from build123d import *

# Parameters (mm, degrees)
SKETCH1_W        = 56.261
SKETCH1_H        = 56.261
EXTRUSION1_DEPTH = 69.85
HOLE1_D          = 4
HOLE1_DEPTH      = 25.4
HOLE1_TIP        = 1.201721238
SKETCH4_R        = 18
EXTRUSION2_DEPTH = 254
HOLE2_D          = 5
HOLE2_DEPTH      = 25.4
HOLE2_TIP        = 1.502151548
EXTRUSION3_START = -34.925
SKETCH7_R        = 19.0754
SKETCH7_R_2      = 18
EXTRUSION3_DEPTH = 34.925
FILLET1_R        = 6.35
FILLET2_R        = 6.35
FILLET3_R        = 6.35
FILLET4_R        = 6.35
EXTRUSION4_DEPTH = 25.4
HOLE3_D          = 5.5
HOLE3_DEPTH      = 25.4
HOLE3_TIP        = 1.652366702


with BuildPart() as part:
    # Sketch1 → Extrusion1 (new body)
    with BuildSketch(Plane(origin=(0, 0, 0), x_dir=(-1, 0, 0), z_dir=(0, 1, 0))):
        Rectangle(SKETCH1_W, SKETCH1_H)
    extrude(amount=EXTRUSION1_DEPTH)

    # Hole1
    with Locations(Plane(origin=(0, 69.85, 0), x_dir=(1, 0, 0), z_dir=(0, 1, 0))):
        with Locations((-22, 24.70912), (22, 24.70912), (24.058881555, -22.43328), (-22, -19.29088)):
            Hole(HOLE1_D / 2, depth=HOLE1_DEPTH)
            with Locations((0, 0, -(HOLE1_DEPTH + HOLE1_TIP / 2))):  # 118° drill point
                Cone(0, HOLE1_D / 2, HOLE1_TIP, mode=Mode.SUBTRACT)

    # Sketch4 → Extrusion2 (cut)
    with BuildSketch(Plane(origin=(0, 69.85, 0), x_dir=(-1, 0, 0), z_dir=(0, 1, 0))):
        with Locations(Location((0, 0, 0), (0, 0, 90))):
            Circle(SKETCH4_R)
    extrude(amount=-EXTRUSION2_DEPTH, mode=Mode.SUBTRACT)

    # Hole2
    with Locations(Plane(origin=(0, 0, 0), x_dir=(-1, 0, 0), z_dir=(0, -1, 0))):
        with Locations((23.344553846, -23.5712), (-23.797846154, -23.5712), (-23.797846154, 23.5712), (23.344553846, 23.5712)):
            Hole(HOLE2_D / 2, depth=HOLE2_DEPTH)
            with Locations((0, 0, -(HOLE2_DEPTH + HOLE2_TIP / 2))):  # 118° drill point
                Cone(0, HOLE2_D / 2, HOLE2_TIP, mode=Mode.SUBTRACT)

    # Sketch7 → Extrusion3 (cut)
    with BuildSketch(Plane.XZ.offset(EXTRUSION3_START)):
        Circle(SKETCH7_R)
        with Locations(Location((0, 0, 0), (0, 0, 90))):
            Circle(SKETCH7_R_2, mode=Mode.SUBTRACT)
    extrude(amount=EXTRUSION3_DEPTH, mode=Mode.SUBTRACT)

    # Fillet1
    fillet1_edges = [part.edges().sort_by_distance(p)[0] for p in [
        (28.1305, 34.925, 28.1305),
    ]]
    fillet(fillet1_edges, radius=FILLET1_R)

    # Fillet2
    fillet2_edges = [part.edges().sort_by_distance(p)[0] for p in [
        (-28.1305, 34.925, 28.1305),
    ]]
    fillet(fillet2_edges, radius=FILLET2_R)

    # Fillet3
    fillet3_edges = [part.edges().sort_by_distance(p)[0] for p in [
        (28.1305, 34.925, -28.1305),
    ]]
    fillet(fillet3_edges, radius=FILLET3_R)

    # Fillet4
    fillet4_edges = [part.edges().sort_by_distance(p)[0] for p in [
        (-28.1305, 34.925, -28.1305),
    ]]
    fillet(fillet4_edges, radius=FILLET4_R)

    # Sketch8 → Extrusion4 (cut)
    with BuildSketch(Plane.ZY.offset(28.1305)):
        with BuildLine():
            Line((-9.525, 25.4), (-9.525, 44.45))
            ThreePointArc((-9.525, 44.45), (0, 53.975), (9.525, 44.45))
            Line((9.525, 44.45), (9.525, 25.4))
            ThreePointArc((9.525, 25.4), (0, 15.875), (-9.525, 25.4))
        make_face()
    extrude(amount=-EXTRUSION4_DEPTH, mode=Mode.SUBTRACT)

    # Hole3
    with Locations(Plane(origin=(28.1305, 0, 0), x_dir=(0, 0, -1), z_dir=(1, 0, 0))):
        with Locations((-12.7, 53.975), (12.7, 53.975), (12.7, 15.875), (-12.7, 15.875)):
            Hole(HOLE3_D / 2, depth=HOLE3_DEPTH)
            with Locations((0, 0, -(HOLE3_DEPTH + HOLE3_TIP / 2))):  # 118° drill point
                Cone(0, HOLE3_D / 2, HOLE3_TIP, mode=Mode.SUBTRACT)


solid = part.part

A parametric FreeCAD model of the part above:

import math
import FreeCAD as App
import Part
import Sketcher
from FreeCAD import Vector
Q = App.Units.Quantity


def edges_at(feature, points):
    """Names of the edges that pass closest to the given points."""
    edges = feature.Shape.Edges
    near = lambda p: min(range(len(edges)), key=lambda i: edges[i].distToShape(Part.Vertex(*p))[0])
    return sorted({f"Edge{near(p) + 1}" for p in points})

doc = App.newDocument("Part")
body = doc.addObject("PartDesign::Body", "Body")

sketch1 = body.newObject("Sketcher::SketchObject", "Sketch")
sketch1.AttachmentSupport = (doc.getObject("XZ_Plane"), [""])
sketch1.MapMode = "FlatFace"
sketch1.addGeometry(Part.LineSegment(Vector(28, 28, 0), Vector(28, -28, 0)), False)
sketch1.addGeometry(Part.LineSegment(Vector(28, -28, 0), Vector(-28, -28, 0)), False)
sketch1.addGeometry(Part.LineSegment(Vector(-28, -28, 0), Vector(-28, 28, 0)), False)
sketch1.addGeometry(Part.LineSegment(Vector(-28, 28, 0), Vector(28, 28, 0)), False)
sketch1.addConstraint(Sketcher.Constraint("Coincident", 0, 2, 1, 1))
sketch1.addConstraint(Sketcher.Constraint("Coincident", 1, 2, 2, 1))
sketch1.addConstraint(Sketcher.Constraint("Coincident", 2, 2, 3, 1))
sketch1.addConstraint(Sketcher.Constraint("Coincident", 3, 2, 0, 1))
sketch1.addConstraint(Sketcher.Constraint("Vertical", 0))
sketch1.addConstraint(Sketcher.Constraint("Horizontal", 1))
sketch1.addConstraint(Sketcher.Constraint("Vertical", 2))
sketch1.addConstraint(Sketcher.Constraint("Horizontal", 3))
sketch1.addConstraint(Sketcher.Constraint("Symmetric", 0, 2, 2, 2, -1, 1))
sketch1.addConstraint(Sketcher.Constraint("Equal", 3, 0))
sketch1.addConstraint(Sketcher.Constraint("DistanceX", 1, 2, 1, 1, Q("2.215 in")))
pad1 = body.newObject("PartDesign::Pad", "Pad")
pad1.Profile = sketch1
pad1.Length = Q("2.75 in")
pad1.Reversed = True

sketch2 = body.newObject("Sketcher::SketchObject", "Sketch001")
sketch2.AttachmentSupport = (doc.getObject("XZ_Plane"), [""])
sketch2.MapMode = "FlatFace"
sketch2.AttachmentOffset = App.Placement(Vector(0, 0, -2.75 * 25.4), App.Rotation())
sketch2.addGeometry(Part.Circle(Vector(-22, -24.7, 0), Vector(0, 0, 1), 2), False)
sketch2.addGeometry(Part.Circle(Vector(22, -24.7, 0), Vector(0, 0, 1), 2), False)
sketch2.addGeometry(Part.Circle(Vector(24.1, 22.4, 0), Vector(0, 0, 1), 2), False)
sketch2.addGeometry(Part.Circle(Vector(-22, 19.3, 0), Vector(0, 0, 1), 2), False)
sketch2.addConstraint(Sketcher.Constraint("Equal", 0, 1))
sketch2.addConstraint(Sketcher.Constraint("Equal", 1, 2))
sketch2.addConstraint(Sketcher.Constraint("Equal", 2, 3))
sketch2.addConstraint(Sketcher.Constraint("Symmetric", 0, 3, 1, 3, -2))
sketch2.addConstraint(Sketcher.Constraint("Vertical", 0, 3, 3, 3))
sketch2.addConstraint(Sketcher.Constraint("Diameter", 0, 4.0))
sketch2.addConstraint(Sketcher.Constraint("DistanceY", 1, 3, 2, 3, Q("1.856 in")))
sketch2.addConstraint(Sketcher.Constraint("DistanceY", 0, 3, -1, 1, Q("0.9728 in")))
sketch2.addConstraint(Sketcher.Constraint("DistanceX", -1, 1, 2, 3, Q("0.9472001 in")))
sketch2.addConstraint(Sketcher.Constraint("DistanceX", 0, 3, -1, 1, 22.0))
sketch2.addConstraint(Sketcher.Constraint("DistanceY", 0, 3, 3, 3, 44.0))
doc.recompute()
hole = body.newObject("PartDesign::Hole", "Hole")
hole.Profile = sketch2
hole.ThreadType = "None"
hole.Diameter = 4
hole.DepthType = "Dimension"
hole.Depth = Q("1 in")
hole.DrillPoint = "Angled"
hole.DrillPointAngle = 118
hole.Reversed = True

sketch3 = body.newObject("Sketcher::SketchObject", "Sketch002")
sketch3.AttachmentSupport = (doc.getObject("XZ_Plane"), [""])
sketch3.MapMode = "FlatFace"
sketch3.AttachmentOffset = App.Placement(Vector(0, 0, -2.75 * 25.4), App.Rotation())
sketch3.addGeometry(Part.Circle(Vector(0, 0, 0), Vector(0, 0, 1), 18), False)
sketch3.addConstraint(Sketcher.Constraint("Coincident", 0, 3, -1, 1))
sketch3.addConstraint(Sketcher.Constraint("Diameter", 0, 36.0))
pocket1 = body.newObject("PartDesign::Pocket", "Pocket")
pocket1.Profile = sketch3
pocket1.Length = Q("10 in")
pocket1.Reversed = True

sketch4 = body.newObject("Sketcher::SketchObject", "Sketch003")
sketch4.AttachmentSupport = (doc.getObject("XZ_Plane"), [""])
sketch4.MapMode = "FlatFace"
sketch4.addGeometry(Part.Circle(Vector(-23.3, 23.6, 0), Vector(0, 0, 1), 2.5), False)
sketch4.addGeometry(Part.Circle(Vector(23.8, 23.6, 0), Vector(0, 0, 1), 2.5), False)
sketch4.addGeometry(Part.Circle(Vector(23.8, -23.6, 0), Vector(0, 0, 1), 2.5), False)
sketch4.addGeometry(Part.Circle(Vector(-23.3, -23.6, 0), Vector(0, 0, 1), 2.5), False)
sketch4.addConstraint(Sketcher.Constraint("Equal", 0, 1))
sketch4.addConstraint(Sketcher.Constraint("Equal", 1, 2))
sketch4.addConstraint(Sketcher.Constraint("Equal", 2, 3))
sketch4.addConstraint(Sketcher.Constraint("Symmetric", 1, 3, 2, 3, -1))
sketch4.addConstraint(Sketcher.Constraint("Symmetric", 0, 3, 3, 3, -1))
sketch4.addConstraint(Sketcher.Constraint("Horizontal", 0, 3, 1, 3))
sketch4.addConstraint(Sketcher.Constraint("Diameter", 0, 5.0))
sketch4.addConstraint(Sketcher.Constraint("DistanceY", -1, 1, 0, 3, Q("0.928 in")))
sketch4.addConstraint(Sketcher.Constraint("DistanceX", 0, 3, 1, 3, Q("1.856 in")))
sketch4.addConstraint(Sketcher.Constraint("DistanceX", 0, 3, -1, 1, 23.344554))
doc.recompute()
hole2 = body.newObject("PartDesign::Hole", "Hole001")
hole2.Profile = sketch4
hole2.ThreadType = "None"
hole2.Diameter = 5
hole2.DepthType = "Dimension"
hole2.Depth = Q("1 in")
hole2.DrillPoint = "Angled"
hole2.DrillPointAngle = 118

sketch5 = body.newObject("Sketcher::SketchObject", "Sketch004")
sketch5.AttachmentSupport = (doc.getObject("XZ_Plane"), [""])
sketch5.MapMode = "FlatFace"
sketch5.AttachmentOffset = App.Placement(Vector(0, 0, -1.375 * 25.4), App.Rotation())
sketch5.addGeometry(Part.Circle(Vector(0, 0, 0), Vector(0, 0, 1), 19), False)
sketch5.addGeometry(Part.Circle(Vector(0, 0, 0), Vector(0, 0, 1), 18), False)
sketch5.addConstraint(Sketcher.Constraint("Coincident", 0, 3, -1, 1))
sketch5.addConstraint(Sketcher.Constraint("Coincident", 1, 3, -1, 1))
sketch5.addConstraint(Sketcher.Constraint("Diameter", 0, Q("1.502 in")))
sketch5.addConstraint(Sketcher.Constraint("Diameter", 1, 36.0))
pocket2 = body.newObject("PartDesign::Pocket", "Pocket001")
pocket2.Profile = sketch5
pocket2.Length = Q("1.375 in")
pocket2.Reversed = True
doc.recompute()

fillet = body.newObject("PartDesign::Fillet", "Fillet")
fillet.Base = (pocket2, edges_at(pocket2, [(28.131, 34.925, 28.131)]))
fillet.Radius = Q("0.25 in")
doc.recompute()

fillet2 = body.newObject("PartDesign::Fillet", "Fillet001")
fillet2.Base = (fillet, edges_at(fillet, [(-28.131, 34.925, 28.131)]))
fillet2.Radius = Q("0.25 in")
doc.recompute()

fillet3 = body.newObject("PartDesign::Fillet", "Fillet002")
fillet3.Base = (fillet2, edges_at(fillet2, [(28.131, 34.925, -28.131)]))
fillet3.Radius = Q("0.25 in")
doc.recompute()

fillet4 = body.newObject("PartDesign::Fillet", "Fillet003")
fillet4.Base = (fillet3, edges_at(fillet3, [(-28.131, 34.925, -28.131)]))
fillet4.Radius = Q("0.25 in")

sketch6 = body.newObject("Sketcher::SketchObject", "Sketch005")
sketch6.AttachmentSupport = (doc.getObject("YZ_Plane"), [""])
sketch6.MapMode = "FlatFace"
sketch6.AttachmentOffset = App.Placement(Vector(0, 0, -1.1075 * 25.4), App.Rotation())
sketch6.addGeometry(Part.LineSegment(Vector(44, -10, 0), Vector(25, -10, 0)), False)
sketch6.addGeometry(Part.ArcOfCircle(Part.Circle(Vector(25, 0, 0), Vector(0, 0, 1), 10), math.radians(90), math.radians(270)), False)
sketch6.addGeometry(Part.LineSegment(Vector(25, 10, 0), Vector(44, 10, 0)), False)
sketch6.addGeometry(Part.ArcOfCircle(Part.Circle(Vector(44, 0, 0), Vector(0, 0, 1), 10), math.radians(-90), math.radians(90)), False)
sketch6.addConstraint(Sketcher.Constraint("Tangent", 0, 2, 1, 2))
sketch6.addConstraint(Sketcher.Constraint("Tangent", 1, 1, 2, 1))
sketch6.addConstraint(Sketcher.Constraint("Tangent", 2, 2, 3, 2))
sketch6.addConstraint(Sketcher.Constraint("Tangent", 3, 1, 0, 1))
sketch6.addConstraint(Sketcher.Constraint("Horizontal", 0))
sketch6.addConstraint(Sketcher.Constraint("Horizontal", 2))
sketch6.addConstraint(Sketcher.Constraint("PointOnObject", 1, 3, -1))
sketch6.addConstraint(Sketcher.Constraint("DistanceX", -1, 1, 1, 3, Q("1 in")))
sketch6.addConstraint(Sketcher.Constraint("Radius", 1, Q("0.375 in")))
sketch6.addConstraint(Sketcher.Constraint("DistanceX", 0, 2, 0, 1, Q("0.75 in")))
pocket3 = body.newObject("PartDesign::Pocket", "Pocket002")
pocket3.Profile = sketch6
pocket3.Length = Q("1 in")
pocket3.Reversed = True

sketch7 = body.newObject("Sketcher::SketchObject", "Sketch006")
sketch7.AttachmentSupport = (doc.getObject("YZ_Plane"), [""])
sketch7.MapMode = "FlatFace"
sketch7.AttachmentOffset = App.Placement(Vector(0, 0, 1.1075 * 25.4), App.Rotation())
sketch7.addGeometry(Part.Circle(Vector(54, 12.7, 0), Vector(0, 0, 1), 2.8), False)
sketch7.addGeometry(Part.Circle(Vector(54, -12.7, 0), Vector(0, 0, 1), 2.8), False)
sketch7.addGeometry(Part.Circle(Vector(15.9, -12.7, 0), Vector(0, 0, 1), 2.8), False)
sketch7.addGeometry(Part.Circle(Vector(15.9, 12.7, 0), Vector(0, 0, 1), 2.8), False)
sketch7.addConstraint(Sketcher.Constraint("Equal", 0, 1))
sketch7.addConstraint(Sketcher.Constraint("Equal", 1, 2))
sketch7.addConstraint(Sketcher.Constraint("Equal", 2, 3))
sketch7.addConstraint(Sketcher.Constraint("Symmetric", 0, 3, 1, 3, -1))
sketch7.addConstraint(Sketcher.Constraint("Symmetric", 2, 3, 3, 3, -1))
sketch7.addConstraint(Sketcher.Constraint("Horizontal", 1, 3, 2, 3))
sketch7.addConstraint(Sketcher.Constraint("DistanceY", 1, 3, 0, 3, Q("1 in")))
sketch7.addConstraint(Sketcher.Constraint("DistanceX", 2, 3, 1, 3, Q("1.5 in")))
sketch7.addConstraint(Sketcher.Constraint("Diameter", 0, 5.5))
sketch7.addConstraint(Sketcher.Constraint("DistanceX", -1, 1, 0, 3, Q("2.125 in")))
doc.recompute()
hole3 = body.newObject("PartDesign::Hole", "Hole002")
hole3.Profile = sketch7
hole3.ThreadType = "None"
hole3.Diameter = 5.5
hole3.DepthType = "Dimension"
hole3.Depth = Q("1 in")
hole3.DrillPoint = "Angled"
hole3.DrillPointAngle = 118

doc.recompute()
